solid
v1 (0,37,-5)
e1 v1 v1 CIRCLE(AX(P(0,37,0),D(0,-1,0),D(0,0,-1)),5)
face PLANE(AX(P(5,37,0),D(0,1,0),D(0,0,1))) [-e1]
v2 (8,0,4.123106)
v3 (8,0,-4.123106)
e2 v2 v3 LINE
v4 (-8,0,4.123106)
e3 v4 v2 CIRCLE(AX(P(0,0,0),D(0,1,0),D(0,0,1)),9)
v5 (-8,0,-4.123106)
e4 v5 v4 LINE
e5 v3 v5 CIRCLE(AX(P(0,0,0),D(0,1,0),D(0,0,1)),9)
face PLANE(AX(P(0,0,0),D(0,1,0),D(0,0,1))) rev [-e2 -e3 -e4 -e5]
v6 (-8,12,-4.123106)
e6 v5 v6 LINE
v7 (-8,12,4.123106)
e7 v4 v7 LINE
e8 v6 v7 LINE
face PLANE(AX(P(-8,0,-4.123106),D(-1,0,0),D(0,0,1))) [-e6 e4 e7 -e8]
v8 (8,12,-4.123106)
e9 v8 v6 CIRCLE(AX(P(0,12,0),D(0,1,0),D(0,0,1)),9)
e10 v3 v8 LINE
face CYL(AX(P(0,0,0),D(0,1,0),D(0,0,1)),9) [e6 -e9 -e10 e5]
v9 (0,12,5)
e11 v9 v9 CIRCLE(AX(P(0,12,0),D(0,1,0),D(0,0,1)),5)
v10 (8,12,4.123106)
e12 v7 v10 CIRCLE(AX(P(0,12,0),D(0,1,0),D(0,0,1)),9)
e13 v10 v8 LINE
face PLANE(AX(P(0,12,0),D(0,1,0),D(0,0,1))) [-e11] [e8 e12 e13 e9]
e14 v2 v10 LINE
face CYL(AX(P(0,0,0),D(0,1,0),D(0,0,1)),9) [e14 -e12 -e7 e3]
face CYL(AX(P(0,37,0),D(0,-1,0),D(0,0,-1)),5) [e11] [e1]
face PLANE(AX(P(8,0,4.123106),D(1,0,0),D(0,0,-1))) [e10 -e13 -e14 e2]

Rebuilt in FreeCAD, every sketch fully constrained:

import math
import FreeCAD as App
import Part
import Sketcher
from FreeCAD import Vector
Q = App.Units.Quantity

doc = App.newDocument("Part")
params = doc.addObject("Spreadsheet::Sheet", "Params")
for row, (alias, value) in enumerate([
    ("sketch1_radius", "9 mm"),
    ("pad1_length", "12 mm"),
    ("sketch2_width", "5 mm"),
    ("sketch2_height", "25 mm"),
    ("revolution_angle", "360 deg"),
], start=1):
    params.set(f"A{row}", alias)
    params.set(f"B{row}", "=" + value)
    params.setAlias(f"B{row}", alias)

body = doc.addObject("PartDesign::Body", "Body")

# Sketch on XZ plane
sketch1 = body.newObject("Sketcher::SketchObject", "Sketch")
sketch1.AttachmentSupport = (doc.getObject("XZ_Plane"), [""])
sketch1.MapMode = "FlatFace"
sketch1.AttachmentOffset = App.Placement(Vector(0, 0, -12), App.Rotation())
sketch1.addGeometry([
    Part.LineSegment(Vector(-8, -4, 0), Vector(-8, 4, 0)),
    Part.ArcOfCircle(Part.Circle(Vector(0, 0, 0), Vector(0, 0, 1), 9), math.radians(27), math.radians(153)),
    Part.LineSegment(Vector(8, 4, 0), Vector(8, -4, 0)),
    Part.ArcOfCircle(Part.Circle(Vector(0, 0, 0), Vector(0, 0, 1), 9), math.radians(-153), math.radians(-27)),
], False)
sketch1.addConstraint([
    Sketcher.Constraint("Coincident", 0, 2, 1, 2),
    Sketcher.Constraint("Coincident", 1, 1, 2, 1),
    Sketcher.Constraint("Coincident", 2, 2, 3, 2),
    Sketcher.Constraint("Coincident", 3, 1, 0, 1),
    Sketcher.Constraint("Vertical", 0),
    Sketcher.Constraint("Vertical", 2),
    Sketcher.Constraint("Coincident", 1, 3, -1, 1),
    Sketcher.Constraint("Coincident", 3, 3, -1, 1),
    Sketcher.Constraint("Equal", 1, 3),
    Sketcher.Constraint("Horizontal", 0, 2, 1, 1),
    Sketcher.Constraint("Radius", 1, Q("9 mm")),
    Sketcher.Constraint("DistanceX", 0, 2, -1, 1, Q("8 mm")),
])
sketch1.setExpression("Constraints[10]", "Params.sketch1_radius")
pad1 = body.newObject("PartDesign::Pad", "Pad")
pad1.Profile = sketch1
pad1.setExpression("Length", "Params.pad1_length")

# Sketch on XY plane
sketch2 = body.newObject("Sketcher::SketchObject", "Sketch001")
sketch2.AttachmentSupport = (doc.getObject("XY_Plane"), [""])
sketch2.MapMode = "FlatFace"
sketch2.addGeometry([
    Part.LineSegment(Vector(0, 37, 0), Vector(0, 12, 0)),
    Part.LineSegment(Vector(0, 12, 0), Vector(5, 12, 0)),
    Part.LineSegment(Vector(5, 12, 0), Vector(5, 37, 0)),
    Part.LineSegment(Vector(5, 37, 0), Vector(0, 37, 0)),
], False)
sketch2.addConstraint([
    Sketcher.Constraint("Coincident", 0, 2, 1, 1),
    Sketcher.Constraint("Coincident", 1, 2, 2, 1),
    Sketcher.Constraint("Coincident", 2, 2, 3, 1),
    Sketcher.Constraint("Coincident", 3, 2, 0, 1),
    Sketcher.Constraint("Vertical", 0),
    Sketcher.Constraint("Horizontal", 1),
    Sketcher.Constraint("Vertical", 2),
    Sketcher.Constraint("Horizontal", 3),
    Sketcher.Constraint("PointOnObject", 0, 2, -2),
    Sketcher.Constraint("DistanceX", 1, 1, 1, 2, Q("5 mm")),
    Sketcher.Constraint("DistanceY", 0, 2, 0, 1, Q("25 mm")),
    Sketcher.Constraint("DistanceY", -1, 1, 0, 2, Q("12 mm")),
])
sketch2.setExpression("Constraints[9]", "Params.sketch2_width")
sketch2.setExpression("Constraints[10]", "Params.sketch2_height")
revolution = body.newObject("PartDesign::Revolution", "Revolution")
revolution.Profile = sketch2
revolution.ReferenceAxis = (sketch2, ["V_Axis"])
revolution.setExpression("Angle", "Params.revolution_angle")

doc.recompute()
